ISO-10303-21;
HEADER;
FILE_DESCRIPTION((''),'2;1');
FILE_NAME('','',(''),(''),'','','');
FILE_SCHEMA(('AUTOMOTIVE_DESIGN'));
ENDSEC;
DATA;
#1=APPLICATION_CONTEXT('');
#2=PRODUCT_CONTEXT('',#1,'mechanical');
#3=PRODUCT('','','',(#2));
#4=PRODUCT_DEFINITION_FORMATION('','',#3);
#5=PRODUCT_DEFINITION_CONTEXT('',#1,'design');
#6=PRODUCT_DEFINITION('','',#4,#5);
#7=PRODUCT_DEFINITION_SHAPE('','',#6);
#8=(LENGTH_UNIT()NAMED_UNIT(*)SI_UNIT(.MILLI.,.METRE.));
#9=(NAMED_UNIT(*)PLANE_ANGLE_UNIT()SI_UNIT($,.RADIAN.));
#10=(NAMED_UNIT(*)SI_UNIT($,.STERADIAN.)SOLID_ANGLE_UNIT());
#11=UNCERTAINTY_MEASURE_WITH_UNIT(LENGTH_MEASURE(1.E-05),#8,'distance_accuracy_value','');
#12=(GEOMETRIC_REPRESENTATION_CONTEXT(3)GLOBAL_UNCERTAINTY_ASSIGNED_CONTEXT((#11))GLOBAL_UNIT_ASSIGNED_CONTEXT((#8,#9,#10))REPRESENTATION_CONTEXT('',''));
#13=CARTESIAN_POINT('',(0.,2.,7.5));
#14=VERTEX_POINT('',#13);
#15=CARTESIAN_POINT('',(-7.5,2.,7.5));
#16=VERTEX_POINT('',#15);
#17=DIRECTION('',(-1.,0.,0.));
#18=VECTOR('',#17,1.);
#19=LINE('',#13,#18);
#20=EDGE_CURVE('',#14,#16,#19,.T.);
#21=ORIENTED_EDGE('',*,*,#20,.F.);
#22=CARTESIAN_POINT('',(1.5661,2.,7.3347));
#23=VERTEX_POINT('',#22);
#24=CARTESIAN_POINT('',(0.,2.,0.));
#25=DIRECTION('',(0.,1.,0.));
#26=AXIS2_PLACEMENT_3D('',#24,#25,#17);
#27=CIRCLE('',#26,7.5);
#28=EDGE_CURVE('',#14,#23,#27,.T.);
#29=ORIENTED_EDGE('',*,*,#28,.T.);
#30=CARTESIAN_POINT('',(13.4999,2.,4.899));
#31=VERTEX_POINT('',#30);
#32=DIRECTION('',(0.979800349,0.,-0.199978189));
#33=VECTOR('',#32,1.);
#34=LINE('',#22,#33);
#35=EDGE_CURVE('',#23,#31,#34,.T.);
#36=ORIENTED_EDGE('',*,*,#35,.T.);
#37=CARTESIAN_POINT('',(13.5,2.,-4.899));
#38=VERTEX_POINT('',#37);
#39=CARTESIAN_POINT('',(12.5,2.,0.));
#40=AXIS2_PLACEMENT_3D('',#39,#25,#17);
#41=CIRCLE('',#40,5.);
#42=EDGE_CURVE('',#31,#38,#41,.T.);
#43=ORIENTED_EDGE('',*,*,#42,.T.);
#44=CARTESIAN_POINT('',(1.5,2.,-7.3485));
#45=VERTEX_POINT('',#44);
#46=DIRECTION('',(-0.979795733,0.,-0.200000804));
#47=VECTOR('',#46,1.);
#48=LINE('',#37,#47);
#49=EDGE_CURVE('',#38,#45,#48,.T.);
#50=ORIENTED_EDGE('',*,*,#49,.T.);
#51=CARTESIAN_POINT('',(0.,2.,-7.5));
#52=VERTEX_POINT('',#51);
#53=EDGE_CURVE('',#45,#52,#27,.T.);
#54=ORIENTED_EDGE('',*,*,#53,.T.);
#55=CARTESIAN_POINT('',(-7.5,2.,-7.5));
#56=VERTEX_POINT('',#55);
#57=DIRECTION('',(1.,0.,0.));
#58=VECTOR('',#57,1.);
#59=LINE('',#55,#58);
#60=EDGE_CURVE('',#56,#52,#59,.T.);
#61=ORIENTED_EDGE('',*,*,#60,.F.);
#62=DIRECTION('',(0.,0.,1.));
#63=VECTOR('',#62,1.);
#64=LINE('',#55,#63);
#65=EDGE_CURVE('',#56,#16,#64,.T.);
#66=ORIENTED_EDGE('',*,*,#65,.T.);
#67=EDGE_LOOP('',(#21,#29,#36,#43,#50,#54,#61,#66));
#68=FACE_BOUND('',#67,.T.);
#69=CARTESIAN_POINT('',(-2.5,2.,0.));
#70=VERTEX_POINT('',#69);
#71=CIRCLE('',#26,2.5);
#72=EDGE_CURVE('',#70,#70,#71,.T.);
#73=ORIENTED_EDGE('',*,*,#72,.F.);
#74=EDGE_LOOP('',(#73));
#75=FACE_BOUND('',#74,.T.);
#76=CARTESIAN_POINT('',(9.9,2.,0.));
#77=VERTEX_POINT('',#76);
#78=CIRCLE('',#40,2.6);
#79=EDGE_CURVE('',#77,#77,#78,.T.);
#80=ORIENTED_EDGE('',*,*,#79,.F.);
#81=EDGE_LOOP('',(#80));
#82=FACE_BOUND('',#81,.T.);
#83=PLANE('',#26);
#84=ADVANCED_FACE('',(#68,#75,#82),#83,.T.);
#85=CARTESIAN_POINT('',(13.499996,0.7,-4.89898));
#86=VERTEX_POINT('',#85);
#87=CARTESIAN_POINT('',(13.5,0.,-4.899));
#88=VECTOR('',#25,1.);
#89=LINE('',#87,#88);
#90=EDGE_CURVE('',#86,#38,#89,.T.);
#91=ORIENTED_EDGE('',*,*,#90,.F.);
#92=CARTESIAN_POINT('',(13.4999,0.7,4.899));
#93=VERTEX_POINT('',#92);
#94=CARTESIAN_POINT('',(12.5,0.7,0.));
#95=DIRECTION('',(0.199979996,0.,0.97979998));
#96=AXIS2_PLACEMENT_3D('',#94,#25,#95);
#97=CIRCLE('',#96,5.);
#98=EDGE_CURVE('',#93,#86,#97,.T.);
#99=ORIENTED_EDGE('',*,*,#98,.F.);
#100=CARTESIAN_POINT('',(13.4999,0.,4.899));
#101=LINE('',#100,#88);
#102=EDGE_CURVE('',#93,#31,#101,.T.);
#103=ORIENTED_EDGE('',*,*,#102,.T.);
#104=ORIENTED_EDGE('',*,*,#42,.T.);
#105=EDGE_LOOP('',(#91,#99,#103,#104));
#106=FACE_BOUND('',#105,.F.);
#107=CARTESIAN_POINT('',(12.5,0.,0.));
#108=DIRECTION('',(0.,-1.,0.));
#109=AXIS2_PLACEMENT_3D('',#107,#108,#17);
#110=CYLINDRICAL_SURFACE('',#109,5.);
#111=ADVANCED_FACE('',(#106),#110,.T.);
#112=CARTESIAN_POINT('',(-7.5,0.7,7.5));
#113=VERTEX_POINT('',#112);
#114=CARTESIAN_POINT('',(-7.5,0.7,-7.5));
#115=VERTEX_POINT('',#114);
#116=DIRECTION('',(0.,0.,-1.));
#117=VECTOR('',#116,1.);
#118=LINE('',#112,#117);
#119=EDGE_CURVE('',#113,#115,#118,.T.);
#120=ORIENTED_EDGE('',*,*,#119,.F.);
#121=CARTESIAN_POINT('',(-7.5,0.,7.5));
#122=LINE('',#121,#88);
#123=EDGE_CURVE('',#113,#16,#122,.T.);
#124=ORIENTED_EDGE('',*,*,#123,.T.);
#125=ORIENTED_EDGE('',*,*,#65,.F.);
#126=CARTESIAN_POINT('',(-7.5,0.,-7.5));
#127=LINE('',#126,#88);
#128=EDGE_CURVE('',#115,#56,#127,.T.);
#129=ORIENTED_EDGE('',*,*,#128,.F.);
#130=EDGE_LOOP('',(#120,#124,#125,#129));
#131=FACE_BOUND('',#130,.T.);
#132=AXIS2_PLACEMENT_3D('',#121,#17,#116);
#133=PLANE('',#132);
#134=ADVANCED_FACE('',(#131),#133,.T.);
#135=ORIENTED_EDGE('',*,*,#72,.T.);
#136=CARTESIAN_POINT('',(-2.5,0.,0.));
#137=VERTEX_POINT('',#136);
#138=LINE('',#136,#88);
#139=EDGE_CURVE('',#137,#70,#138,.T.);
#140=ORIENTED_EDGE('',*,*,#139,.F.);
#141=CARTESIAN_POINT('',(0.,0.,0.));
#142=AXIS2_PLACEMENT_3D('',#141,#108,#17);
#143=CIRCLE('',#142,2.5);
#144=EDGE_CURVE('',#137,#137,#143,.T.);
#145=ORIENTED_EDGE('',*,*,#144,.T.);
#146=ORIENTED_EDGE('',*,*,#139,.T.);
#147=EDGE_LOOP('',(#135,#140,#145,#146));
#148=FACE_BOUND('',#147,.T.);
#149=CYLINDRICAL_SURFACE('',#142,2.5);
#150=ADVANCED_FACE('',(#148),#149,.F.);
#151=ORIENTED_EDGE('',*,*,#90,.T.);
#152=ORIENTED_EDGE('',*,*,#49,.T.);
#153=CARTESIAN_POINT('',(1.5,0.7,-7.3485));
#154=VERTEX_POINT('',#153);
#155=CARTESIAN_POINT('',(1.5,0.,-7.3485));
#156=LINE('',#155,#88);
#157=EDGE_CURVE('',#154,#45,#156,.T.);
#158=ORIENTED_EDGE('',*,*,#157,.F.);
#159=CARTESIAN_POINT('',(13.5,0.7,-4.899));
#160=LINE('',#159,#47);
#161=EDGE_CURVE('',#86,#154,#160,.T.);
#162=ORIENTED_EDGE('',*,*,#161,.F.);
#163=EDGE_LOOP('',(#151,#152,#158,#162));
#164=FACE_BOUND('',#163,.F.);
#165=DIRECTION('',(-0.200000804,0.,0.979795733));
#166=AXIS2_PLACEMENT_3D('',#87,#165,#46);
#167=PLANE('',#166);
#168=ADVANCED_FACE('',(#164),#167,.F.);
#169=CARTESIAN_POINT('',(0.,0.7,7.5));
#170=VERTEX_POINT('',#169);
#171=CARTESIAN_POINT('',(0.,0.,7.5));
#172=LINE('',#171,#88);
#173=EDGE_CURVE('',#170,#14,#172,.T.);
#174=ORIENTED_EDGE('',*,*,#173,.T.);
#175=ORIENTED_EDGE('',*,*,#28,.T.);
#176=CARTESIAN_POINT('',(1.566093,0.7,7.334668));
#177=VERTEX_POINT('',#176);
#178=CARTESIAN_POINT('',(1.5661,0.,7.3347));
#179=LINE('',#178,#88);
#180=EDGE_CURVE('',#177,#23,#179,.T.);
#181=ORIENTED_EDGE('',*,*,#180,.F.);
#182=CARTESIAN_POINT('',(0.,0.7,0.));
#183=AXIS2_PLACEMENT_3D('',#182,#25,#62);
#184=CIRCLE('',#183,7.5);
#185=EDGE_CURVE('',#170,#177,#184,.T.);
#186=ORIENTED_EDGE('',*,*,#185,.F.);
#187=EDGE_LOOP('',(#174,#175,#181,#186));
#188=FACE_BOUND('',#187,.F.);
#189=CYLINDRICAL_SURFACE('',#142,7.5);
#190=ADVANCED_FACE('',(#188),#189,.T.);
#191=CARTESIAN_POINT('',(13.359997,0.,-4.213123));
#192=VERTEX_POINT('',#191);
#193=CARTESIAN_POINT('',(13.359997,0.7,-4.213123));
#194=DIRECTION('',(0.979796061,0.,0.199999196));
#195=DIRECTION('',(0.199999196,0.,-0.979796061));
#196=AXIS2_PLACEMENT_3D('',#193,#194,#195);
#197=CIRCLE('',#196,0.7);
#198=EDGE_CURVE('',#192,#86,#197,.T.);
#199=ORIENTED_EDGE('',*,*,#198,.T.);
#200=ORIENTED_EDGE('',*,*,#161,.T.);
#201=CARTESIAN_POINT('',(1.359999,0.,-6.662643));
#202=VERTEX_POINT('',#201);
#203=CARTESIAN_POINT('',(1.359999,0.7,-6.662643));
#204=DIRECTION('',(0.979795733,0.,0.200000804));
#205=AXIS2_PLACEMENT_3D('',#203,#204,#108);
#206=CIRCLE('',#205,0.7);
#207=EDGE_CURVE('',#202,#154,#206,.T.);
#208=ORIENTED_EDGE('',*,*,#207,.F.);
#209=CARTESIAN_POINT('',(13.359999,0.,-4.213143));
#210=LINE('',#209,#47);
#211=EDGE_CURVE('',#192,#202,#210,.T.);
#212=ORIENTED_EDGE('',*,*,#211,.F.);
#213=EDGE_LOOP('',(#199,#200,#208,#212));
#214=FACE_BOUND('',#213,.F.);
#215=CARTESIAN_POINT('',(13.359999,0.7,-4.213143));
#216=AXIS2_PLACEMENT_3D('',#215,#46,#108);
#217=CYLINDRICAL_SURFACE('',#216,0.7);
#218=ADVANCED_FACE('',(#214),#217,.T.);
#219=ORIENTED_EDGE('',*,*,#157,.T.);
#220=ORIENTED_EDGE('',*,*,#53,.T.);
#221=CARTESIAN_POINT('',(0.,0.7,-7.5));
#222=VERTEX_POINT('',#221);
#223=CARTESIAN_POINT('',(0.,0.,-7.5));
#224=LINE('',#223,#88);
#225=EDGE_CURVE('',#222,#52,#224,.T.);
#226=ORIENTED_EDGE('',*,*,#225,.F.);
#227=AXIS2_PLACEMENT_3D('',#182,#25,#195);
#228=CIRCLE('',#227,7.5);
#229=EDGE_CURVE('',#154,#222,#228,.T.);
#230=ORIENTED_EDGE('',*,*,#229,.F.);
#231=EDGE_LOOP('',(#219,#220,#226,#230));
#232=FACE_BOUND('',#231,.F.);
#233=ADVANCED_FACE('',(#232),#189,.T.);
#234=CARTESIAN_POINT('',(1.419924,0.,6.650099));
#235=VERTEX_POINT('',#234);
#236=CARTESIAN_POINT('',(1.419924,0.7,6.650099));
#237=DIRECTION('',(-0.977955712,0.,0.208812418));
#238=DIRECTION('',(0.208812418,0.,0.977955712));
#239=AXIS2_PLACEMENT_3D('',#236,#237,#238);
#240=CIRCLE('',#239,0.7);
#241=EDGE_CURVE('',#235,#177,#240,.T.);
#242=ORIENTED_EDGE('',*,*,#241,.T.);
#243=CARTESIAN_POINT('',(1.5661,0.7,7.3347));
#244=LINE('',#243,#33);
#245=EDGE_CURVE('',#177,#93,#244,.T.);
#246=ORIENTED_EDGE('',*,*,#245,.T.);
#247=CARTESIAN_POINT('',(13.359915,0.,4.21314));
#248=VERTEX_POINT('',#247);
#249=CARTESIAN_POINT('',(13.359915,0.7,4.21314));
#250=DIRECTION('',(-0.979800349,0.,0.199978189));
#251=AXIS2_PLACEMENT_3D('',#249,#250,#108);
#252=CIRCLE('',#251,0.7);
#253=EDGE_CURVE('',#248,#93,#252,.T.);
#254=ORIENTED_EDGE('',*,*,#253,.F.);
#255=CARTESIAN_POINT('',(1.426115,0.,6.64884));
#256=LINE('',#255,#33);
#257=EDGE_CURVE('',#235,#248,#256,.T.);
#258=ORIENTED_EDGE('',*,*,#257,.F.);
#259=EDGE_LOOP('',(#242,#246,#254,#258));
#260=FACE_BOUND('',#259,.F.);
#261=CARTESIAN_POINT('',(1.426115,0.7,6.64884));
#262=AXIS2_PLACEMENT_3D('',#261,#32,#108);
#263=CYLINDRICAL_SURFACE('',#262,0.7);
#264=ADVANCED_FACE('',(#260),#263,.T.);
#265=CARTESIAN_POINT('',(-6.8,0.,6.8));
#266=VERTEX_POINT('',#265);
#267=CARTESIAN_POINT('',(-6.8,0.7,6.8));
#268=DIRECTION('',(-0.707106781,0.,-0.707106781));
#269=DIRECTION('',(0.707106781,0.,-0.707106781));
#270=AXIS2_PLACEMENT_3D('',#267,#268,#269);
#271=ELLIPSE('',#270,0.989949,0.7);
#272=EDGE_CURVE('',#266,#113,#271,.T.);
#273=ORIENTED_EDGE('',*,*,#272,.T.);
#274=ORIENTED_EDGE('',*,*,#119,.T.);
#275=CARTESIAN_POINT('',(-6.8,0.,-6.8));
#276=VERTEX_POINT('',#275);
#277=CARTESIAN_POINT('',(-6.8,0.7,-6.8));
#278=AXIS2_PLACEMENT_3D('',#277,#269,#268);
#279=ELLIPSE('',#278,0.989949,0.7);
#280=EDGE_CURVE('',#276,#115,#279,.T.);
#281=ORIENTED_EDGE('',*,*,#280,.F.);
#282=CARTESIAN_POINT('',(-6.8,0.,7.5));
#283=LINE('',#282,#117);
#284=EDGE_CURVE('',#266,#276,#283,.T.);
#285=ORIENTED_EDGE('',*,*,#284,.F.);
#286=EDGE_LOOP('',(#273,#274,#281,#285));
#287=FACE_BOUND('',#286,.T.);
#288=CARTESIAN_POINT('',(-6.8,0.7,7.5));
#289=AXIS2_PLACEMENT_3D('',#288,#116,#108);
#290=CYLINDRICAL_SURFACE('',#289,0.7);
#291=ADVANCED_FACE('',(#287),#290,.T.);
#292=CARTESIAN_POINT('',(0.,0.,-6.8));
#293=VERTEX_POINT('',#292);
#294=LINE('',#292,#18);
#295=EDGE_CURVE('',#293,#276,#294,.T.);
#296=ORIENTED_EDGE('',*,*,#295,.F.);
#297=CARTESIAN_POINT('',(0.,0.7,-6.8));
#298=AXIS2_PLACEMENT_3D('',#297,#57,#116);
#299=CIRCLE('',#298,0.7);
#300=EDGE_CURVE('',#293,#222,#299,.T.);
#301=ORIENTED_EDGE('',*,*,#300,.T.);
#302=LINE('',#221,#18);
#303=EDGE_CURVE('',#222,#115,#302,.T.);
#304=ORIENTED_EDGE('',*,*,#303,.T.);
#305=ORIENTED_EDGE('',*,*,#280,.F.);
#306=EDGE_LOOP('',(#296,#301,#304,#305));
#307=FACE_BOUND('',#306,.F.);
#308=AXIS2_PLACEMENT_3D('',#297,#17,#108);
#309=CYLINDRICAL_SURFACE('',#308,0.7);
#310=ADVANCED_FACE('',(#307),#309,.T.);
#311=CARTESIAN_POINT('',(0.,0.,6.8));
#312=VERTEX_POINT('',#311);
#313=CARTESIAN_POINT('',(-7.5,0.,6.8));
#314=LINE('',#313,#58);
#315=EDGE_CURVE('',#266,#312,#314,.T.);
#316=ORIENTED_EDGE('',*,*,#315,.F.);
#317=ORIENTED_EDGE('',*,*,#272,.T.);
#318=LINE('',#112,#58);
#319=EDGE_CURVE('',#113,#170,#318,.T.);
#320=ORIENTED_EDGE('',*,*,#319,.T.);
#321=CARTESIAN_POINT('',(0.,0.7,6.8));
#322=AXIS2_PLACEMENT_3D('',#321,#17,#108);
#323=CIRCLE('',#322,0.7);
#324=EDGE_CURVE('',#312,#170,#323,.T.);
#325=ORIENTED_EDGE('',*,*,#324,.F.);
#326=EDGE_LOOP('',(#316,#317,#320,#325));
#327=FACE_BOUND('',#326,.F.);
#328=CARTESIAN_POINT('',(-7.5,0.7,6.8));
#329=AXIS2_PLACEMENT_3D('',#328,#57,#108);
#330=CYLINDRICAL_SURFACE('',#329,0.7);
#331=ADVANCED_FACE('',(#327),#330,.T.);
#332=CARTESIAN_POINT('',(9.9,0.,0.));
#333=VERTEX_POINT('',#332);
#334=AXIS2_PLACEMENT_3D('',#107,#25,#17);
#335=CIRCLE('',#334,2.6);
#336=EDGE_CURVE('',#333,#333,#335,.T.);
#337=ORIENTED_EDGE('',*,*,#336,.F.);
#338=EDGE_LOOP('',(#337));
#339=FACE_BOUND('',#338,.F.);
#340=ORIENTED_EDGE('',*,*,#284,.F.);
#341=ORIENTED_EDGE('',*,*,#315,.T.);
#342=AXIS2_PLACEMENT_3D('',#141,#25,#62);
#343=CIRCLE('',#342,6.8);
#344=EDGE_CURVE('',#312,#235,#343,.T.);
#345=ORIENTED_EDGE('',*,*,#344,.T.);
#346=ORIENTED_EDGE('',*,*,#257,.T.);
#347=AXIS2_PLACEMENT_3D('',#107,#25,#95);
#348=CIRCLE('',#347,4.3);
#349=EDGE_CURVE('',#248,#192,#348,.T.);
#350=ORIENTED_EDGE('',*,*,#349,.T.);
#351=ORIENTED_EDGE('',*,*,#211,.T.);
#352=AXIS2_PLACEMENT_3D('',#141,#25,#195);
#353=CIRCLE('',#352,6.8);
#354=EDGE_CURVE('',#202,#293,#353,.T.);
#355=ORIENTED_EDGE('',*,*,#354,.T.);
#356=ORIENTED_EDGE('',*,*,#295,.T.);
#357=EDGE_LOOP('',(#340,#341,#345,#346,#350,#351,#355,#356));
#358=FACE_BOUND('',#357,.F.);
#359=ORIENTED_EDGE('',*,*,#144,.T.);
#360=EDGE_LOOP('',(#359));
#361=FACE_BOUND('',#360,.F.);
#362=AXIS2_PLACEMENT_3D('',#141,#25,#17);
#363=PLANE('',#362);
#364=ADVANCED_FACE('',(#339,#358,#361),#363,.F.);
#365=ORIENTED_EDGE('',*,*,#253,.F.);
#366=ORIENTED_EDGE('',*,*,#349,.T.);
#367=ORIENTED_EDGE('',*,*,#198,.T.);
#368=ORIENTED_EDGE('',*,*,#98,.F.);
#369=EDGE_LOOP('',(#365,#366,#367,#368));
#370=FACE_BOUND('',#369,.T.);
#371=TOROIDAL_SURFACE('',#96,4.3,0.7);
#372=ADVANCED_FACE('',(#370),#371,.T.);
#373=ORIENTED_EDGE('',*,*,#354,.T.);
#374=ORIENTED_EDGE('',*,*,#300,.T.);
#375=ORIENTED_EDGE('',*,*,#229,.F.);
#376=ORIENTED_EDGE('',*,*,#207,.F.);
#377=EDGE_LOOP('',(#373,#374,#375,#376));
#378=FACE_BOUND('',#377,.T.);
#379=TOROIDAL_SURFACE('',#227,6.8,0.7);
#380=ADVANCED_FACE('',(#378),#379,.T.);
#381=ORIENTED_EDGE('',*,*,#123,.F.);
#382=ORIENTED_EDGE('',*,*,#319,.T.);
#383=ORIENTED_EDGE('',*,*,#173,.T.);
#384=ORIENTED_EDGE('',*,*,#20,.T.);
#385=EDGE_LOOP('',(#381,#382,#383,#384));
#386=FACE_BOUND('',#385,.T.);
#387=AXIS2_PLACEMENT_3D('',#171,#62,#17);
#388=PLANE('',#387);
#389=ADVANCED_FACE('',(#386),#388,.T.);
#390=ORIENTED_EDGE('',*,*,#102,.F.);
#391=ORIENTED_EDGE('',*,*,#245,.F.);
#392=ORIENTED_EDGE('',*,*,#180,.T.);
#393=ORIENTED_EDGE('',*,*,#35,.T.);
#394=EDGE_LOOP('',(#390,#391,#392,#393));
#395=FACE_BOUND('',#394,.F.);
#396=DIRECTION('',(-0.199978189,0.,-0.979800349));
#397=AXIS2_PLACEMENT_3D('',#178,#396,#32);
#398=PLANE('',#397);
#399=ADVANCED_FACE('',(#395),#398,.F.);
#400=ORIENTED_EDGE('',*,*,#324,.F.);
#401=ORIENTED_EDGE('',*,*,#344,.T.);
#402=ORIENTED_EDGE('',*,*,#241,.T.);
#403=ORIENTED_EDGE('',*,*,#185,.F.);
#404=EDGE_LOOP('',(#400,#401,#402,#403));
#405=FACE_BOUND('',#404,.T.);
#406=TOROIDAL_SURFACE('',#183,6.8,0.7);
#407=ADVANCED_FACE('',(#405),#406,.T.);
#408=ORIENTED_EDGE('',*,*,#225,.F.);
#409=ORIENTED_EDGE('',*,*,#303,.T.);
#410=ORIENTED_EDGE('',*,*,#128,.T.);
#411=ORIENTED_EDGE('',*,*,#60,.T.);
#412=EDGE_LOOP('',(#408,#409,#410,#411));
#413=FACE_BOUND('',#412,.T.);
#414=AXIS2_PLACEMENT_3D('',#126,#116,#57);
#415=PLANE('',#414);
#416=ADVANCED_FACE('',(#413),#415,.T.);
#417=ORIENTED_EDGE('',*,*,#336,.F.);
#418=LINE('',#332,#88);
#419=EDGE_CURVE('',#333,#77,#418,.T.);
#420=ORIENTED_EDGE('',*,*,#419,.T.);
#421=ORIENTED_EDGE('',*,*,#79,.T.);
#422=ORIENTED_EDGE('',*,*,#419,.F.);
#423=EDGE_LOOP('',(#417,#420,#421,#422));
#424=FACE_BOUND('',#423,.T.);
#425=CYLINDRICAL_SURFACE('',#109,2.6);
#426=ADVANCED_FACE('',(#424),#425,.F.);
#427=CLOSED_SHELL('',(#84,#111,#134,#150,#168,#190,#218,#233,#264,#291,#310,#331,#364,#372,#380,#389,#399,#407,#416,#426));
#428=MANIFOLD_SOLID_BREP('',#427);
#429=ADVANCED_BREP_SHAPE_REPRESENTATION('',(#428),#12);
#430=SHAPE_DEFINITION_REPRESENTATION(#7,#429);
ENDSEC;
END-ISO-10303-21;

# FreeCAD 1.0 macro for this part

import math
import FreeCAD as App
import Part
import Sketcher

V = App.Vector
Q = App.Units.Quantity


def edges_at(feature, points):
    """Names of the edges that pass closest to the given points."""
    edges = feature.Shape.Edges
    near = lambda p: min(range(len(edges)), key=lambda i: edges[i].distToShape(Part.Vertex(*p))[0])
    return sorted({f"Edge{near(p) + 1}" for p in points})

doc = App.newDocument("Part")
body = doc.addObject("PartDesign::Body", "Body")

# Sketch on XZ plane
sketch1 = body.newObject("Sketcher::SketchObject", "Sketch")
sketch1.AttachmentSupport = (doc.getObject("XZ_Plane"), [""])
sketch1.MapMode = "FlatFace"
sketch1.addGeometry([
    Part.ArcOfCircle(Part.Circle(V(0, 0, 0), V(0, 0, 1), 7.5), math.radians(77.947234), math.radians(90)),  # 0
    Part.LineSegment(V(1.5661, 7.3347, 0), V(13.4999, 4.899, 0)),  # 1
    Part.ArcOfCircle(Part.Circle(V(12.5, 0, 0), V(0, 0, 1), 5), math.radians(-78.463088), math.radians(78.464211)),  # 2
    Part.LineSegment(V(13.5, -4.899, 0), V(1.5, -7.3485, 0)),  # 3
    Part.ArcOfCircle(Part.Circle(V(0, 0, 0), V(0, 0, 1), 7.5), math.radians(-90), math.radians(-78.463088)),  # 4
    Part.LineSegment(V(0, -7.5, 0), V(-7.5, -7.5, 0)),  # 5
    Part.LineSegment(V(-7.5, -7.5, 0), V(-7.5, 7.5, 0)),  # 6
    Part.LineSegment(V(-7.5, 7.5, 0), V(0, 7.5, 0)),  # 7
    Part.Circle(V(0, 0, 0), V(0, 0, 1), 2.5),  # 8
    Part.Circle(V(12.5, 0, 0), V(0, 0, 1), 2.6),  # 9
], False)
sketch1.addConstraint([
    Sketcher.Constraint("Coincident", 0, 1, 1, 1),
    Sketcher.Constraint("Coincident", 1, 2, 2, 2),
    Sketcher.Constraint("Coincident", 2, 1, 3, 1),
    Sketcher.Constraint("Coincident", 3, 2, 4, 2),
    Sketcher.Constraint("Coincident", 4, 1, 5, 1),
    Sketcher.Constraint("Coincident", 5, 2, 6, 1),
    Sketcher.Constraint("Coincident", 6, 2, 7, 1),
    Sketcher.Constraint("Coincident", 7, 2, 0, 2),
    Sketcher.Constraint("Horizontal", 5),
    Sketcher.Constraint("Vertical", 6),
    Sketcher.Constraint("Horizontal", 7),
    Sketcher.Constraint("Coincident", 0, 3, -1, 1),
    Sketcher.Constraint("Coincident", 4, 3, -1, 1),
    Sketcher.Constraint("Coincident", 8, 3, -1, 1),
    Sketcher.Constraint("Coincident", 9, 3, 2, 3),
    Sketcher.Constraint("PointOnObject", 2, 3, -1),
    Sketcher.Constraint("PointOnObject", 4, 1, -2),
    Sketcher.Constraint("PointOnObject", 7, 2, -2),
    Sketcher.Constraint("Diameter", 8, Q("5 mm")),
    Sketcher.Constraint("Radius", 2, Q("5 mm")),
    Sketcher.Constraint("Diameter", 9, Q("5.2 mm")),
    Sketcher.Constraint("Radius", 0, Q("7.5 mm")),
    Sketcher.Constraint("Radius", 4, Q("7.5 mm")),
    Sketcher.Constraint("DistanceX", 5, 2, 5, 1, Q("7.5 mm")),
    Sketcher.Constraint("DistanceX", 2, 3, 1, 2, Q("1 mm")),
    Sketcher.Constraint("DistanceX", 2, 3, 2, 1, Q("1 mm")),
    Sketcher.Constraint("DistanceX", 3, 2, 2, 1, Q("12 mm")),
    Sketcher.Constraint("DistanceX", 5, 2, 3, 2, Q("9 mm")),
    Sketcher.Constraint("DistanceX", -1, 1, 0, 1, Q("1.566 mm")),
])
pad1 = body.newObject("PartDesign::Pad", "Pad")
pad1.Profile = sketch1
pad1.Length = 2
pad1.Reversed = True
doc.recompute()

fillet = body.newObject("PartDesign::Fillet", "Fillet")
fillet.Base = (pad1, edges_at(pad1, [
    (0.787, 0, 7.459),
    (-3.75, 0, 7.5),
    (-7.5, 0, 0),
    (0.754, 0, -7.462),
    (7.5, 0, -6.124),
    (17.5, 0, 0),
    (7.533, 0, 6.117),
    (-3.75, 0, -7.5),
]))
fillet.Radius = 0.7

doc.recompute()
